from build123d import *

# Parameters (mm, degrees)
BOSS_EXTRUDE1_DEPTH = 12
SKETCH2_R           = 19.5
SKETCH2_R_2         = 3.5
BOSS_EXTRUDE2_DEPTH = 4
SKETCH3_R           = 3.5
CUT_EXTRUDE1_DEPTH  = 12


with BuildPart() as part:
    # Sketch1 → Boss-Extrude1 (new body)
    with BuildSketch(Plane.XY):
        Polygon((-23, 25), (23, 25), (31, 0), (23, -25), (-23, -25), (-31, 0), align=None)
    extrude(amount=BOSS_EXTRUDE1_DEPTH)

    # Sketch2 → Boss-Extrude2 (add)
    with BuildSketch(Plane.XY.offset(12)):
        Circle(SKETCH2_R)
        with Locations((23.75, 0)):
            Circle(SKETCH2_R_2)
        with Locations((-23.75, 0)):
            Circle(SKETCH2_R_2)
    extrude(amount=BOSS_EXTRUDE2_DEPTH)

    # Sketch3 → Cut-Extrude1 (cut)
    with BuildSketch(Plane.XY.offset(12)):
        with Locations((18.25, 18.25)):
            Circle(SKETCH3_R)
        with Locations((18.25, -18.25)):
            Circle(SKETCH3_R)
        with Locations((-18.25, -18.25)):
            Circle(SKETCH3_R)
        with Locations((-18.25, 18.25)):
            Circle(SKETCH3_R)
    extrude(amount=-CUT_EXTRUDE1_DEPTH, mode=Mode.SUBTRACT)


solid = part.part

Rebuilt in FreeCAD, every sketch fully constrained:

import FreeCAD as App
import Part
import Sketcher
from FreeCAD import Vector
Q = App.Units.Quantity

doc = App.newDocument("Part")
body = doc.addObject("PartDesign::Body", "Body")

# Sketch on XY plane
sketch1 = doc.addObject("Sketcher::SketchObject", "Sketch")
body.addObject(sketch1)
sketch1.AttachmentSupport = (doc.XY_Plane, [""])
sketch1.MapMode = "FlatFace"
sketch1.addGeometry([
    Part.LineSegment(Vector(23, 25, 0), Vector(-23, 25, 0)),  # 0
    Part.LineSegment(Vector(-23, 25, 0), Vector(-31, 0, 0)),  # 1
    Part.LineSegment(Vector(-31, 0, 0), Vector(-23, -25, 0)),  # 2
    Part.LineSegment(Vector(-23, -25, 0), Vector(23, -25, 0)),  # 3
    Part.LineSegment(Vector(23, -25, 0), Vector(31, 0, 0)),  # 4
    Part.LineSegment(Vector(31, 0, 0), Vector(23, 25, 0)),  # 5
], False)
sketch1.addConstraint([
    Sketcher.Constraint("Coincident", 0, 2, 1, 1),
    Sketcher.Constraint("Coincident", 1, 2, 2, 1),
    Sketcher.Constraint("Coincident", 2, 2, 3, 1),
    Sketcher.Constraint("Coincident", 3, 2, 4, 1),
    Sketcher.Constraint("Coincident", 4, 2, 5, 1),
    Sketcher.Constraint("Coincident", 5, 2, 0, 1),
    Sketcher.Constraint("Horizontal", 0),
    Sketcher.Constraint("Horizontal", 3),
    Sketcher.Constraint("Symmetric", 0, 2, 3, 2, -1, 1),
    Sketcher.Constraint("Symmetric", 1, 2, 4, 2, -1, 1),
    Sketcher.Constraint("PointOnObject", 1, 2, -1),
    Sketcher.Constraint("Parallel", 2, 5),
    Sketcher.Constraint("Vertical", 0, 2, 2, 2),
    Sketcher.Constraint("DistanceX", 0, 2, 0, 1, Q("46 mm")),
    Sketcher.Constraint("DistanceY", -1, 1, 0, 2, Q("25 mm")),
    Sketcher.Constraint("DistanceX", 1, 2, -1, 1, Q("31 mm")),
])
pad1 = doc.addObject("PartDesign::Pad", "Pad")
body.addObject(pad1)
pad1.Profile = sketch1
pad1.Length = 12

# Sketch on XY plane
sketch2 = doc.addObject("Sketcher::SketchObject", "Sketch001")
body.addObject(sketch2)
sketch2.AttachmentSupport = (doc.XY_Plane, [""])
sketch2.MapMode = "FlatFace"
sketch2.AttachmentOffset = App.Placement(Vector(0, 0, 12), App.Rotation())
sketch2.addGeometry([
    Part.Circle(Vector(0, 0, 0), Vector(0, 0, 1), 19.5),
    Part.Circle(Vector(23.75, 0, 0), Vector(0, 0, 1), 3.5),
    Part.Circle(Vector(-23.75, 0, 0), Vector(0, 0, 1), 3.5),
], False)
sketch2.addConstraint([
    Sketcher.Constraint("Coincident", 0, 3, -1, 1),
    Sketcher.Constraint("Equal", 1, 2),
    Sketcher.Constraint("Symmetric", 1, 3, 2, 3, -1, 1),
    Sketcher.Constraint("PointOnObject", 1, 3, -1),
    Sketcher.Constraint("Diameter", 0, Q("39 mm")),
    Sketcher.Constraint("Diameter", 1, Q("7 mm")),
    Sketcher.Constraint("DistanceX", 2, 3, 1, 3, Q("47.5 mm")),
])
pad2 = doc.addObject("PartDesign::Pad", "Pad001")
body.addObject(pad2)
pad2.Profile = sketch2
pad2.Length = 4

# Sketch on XY plane
sketch3 = doc.addObject("Sketcher::SketchObject", "Sketch002")
body.addObject(sketch3)
sketch3.AttachmentSupport = (doc.XY_Plane, [""])
sketch3.MapMode = "FlatFace"
sketch3.AttachmentOffset = App.Placement(Vector(0, 0, 12), App.Rotation())
sketch3.addGeometry([
    Part.Circle(Vector(18.25, 18.25, 0), Vector(0, 0, 1), 3.5),
    Part.Circle(Vector(18.25, -18.25, 0), Vector(0, 0, 1), 3.5),
    Part.Circle(Vector(-18.25, -18.25, 0), Vector(0, 0, 1), 3.5),
    Part.Circle(Vector(-18.25, 18.25, 0), Vector(0, 0, 1), 3.5),
], False)
sketch3.addConstraint([
    Sketcher.Constraint("Equal", 0, 1),
    Sketcher.Constraint("Equal", 1, 2),
    Sketcher.Constraint("Equal", 2, 3),
    Sketcher.Constraint("Symmetric", 0, 3, 2, 3, -1, 1),
    Sketcher.Constraint("Symmetric", 1, 3, 3, 3, -1, 1),
    Sketcher.Constraint("Symmetric", 1, 3, 2, 3, -2),
    Sketcher.Constraint("Diameter", 0, Q("7 mm")),
    Sketcher.Constraint("DistanceY", 1, 3, 0, 3, Q("36.5 mm")),
    Sketcher.Constraint("DistanceX", 2, 3, 1, 3, Q("36.5 mm")),
])
pocket1 = doc.addObject("PartDesign::Pocket", "Pocket")
body.addObject(pocket1)
pocket1.Profile = sketch3
pocket1.Length = 12

doc.recompute()
